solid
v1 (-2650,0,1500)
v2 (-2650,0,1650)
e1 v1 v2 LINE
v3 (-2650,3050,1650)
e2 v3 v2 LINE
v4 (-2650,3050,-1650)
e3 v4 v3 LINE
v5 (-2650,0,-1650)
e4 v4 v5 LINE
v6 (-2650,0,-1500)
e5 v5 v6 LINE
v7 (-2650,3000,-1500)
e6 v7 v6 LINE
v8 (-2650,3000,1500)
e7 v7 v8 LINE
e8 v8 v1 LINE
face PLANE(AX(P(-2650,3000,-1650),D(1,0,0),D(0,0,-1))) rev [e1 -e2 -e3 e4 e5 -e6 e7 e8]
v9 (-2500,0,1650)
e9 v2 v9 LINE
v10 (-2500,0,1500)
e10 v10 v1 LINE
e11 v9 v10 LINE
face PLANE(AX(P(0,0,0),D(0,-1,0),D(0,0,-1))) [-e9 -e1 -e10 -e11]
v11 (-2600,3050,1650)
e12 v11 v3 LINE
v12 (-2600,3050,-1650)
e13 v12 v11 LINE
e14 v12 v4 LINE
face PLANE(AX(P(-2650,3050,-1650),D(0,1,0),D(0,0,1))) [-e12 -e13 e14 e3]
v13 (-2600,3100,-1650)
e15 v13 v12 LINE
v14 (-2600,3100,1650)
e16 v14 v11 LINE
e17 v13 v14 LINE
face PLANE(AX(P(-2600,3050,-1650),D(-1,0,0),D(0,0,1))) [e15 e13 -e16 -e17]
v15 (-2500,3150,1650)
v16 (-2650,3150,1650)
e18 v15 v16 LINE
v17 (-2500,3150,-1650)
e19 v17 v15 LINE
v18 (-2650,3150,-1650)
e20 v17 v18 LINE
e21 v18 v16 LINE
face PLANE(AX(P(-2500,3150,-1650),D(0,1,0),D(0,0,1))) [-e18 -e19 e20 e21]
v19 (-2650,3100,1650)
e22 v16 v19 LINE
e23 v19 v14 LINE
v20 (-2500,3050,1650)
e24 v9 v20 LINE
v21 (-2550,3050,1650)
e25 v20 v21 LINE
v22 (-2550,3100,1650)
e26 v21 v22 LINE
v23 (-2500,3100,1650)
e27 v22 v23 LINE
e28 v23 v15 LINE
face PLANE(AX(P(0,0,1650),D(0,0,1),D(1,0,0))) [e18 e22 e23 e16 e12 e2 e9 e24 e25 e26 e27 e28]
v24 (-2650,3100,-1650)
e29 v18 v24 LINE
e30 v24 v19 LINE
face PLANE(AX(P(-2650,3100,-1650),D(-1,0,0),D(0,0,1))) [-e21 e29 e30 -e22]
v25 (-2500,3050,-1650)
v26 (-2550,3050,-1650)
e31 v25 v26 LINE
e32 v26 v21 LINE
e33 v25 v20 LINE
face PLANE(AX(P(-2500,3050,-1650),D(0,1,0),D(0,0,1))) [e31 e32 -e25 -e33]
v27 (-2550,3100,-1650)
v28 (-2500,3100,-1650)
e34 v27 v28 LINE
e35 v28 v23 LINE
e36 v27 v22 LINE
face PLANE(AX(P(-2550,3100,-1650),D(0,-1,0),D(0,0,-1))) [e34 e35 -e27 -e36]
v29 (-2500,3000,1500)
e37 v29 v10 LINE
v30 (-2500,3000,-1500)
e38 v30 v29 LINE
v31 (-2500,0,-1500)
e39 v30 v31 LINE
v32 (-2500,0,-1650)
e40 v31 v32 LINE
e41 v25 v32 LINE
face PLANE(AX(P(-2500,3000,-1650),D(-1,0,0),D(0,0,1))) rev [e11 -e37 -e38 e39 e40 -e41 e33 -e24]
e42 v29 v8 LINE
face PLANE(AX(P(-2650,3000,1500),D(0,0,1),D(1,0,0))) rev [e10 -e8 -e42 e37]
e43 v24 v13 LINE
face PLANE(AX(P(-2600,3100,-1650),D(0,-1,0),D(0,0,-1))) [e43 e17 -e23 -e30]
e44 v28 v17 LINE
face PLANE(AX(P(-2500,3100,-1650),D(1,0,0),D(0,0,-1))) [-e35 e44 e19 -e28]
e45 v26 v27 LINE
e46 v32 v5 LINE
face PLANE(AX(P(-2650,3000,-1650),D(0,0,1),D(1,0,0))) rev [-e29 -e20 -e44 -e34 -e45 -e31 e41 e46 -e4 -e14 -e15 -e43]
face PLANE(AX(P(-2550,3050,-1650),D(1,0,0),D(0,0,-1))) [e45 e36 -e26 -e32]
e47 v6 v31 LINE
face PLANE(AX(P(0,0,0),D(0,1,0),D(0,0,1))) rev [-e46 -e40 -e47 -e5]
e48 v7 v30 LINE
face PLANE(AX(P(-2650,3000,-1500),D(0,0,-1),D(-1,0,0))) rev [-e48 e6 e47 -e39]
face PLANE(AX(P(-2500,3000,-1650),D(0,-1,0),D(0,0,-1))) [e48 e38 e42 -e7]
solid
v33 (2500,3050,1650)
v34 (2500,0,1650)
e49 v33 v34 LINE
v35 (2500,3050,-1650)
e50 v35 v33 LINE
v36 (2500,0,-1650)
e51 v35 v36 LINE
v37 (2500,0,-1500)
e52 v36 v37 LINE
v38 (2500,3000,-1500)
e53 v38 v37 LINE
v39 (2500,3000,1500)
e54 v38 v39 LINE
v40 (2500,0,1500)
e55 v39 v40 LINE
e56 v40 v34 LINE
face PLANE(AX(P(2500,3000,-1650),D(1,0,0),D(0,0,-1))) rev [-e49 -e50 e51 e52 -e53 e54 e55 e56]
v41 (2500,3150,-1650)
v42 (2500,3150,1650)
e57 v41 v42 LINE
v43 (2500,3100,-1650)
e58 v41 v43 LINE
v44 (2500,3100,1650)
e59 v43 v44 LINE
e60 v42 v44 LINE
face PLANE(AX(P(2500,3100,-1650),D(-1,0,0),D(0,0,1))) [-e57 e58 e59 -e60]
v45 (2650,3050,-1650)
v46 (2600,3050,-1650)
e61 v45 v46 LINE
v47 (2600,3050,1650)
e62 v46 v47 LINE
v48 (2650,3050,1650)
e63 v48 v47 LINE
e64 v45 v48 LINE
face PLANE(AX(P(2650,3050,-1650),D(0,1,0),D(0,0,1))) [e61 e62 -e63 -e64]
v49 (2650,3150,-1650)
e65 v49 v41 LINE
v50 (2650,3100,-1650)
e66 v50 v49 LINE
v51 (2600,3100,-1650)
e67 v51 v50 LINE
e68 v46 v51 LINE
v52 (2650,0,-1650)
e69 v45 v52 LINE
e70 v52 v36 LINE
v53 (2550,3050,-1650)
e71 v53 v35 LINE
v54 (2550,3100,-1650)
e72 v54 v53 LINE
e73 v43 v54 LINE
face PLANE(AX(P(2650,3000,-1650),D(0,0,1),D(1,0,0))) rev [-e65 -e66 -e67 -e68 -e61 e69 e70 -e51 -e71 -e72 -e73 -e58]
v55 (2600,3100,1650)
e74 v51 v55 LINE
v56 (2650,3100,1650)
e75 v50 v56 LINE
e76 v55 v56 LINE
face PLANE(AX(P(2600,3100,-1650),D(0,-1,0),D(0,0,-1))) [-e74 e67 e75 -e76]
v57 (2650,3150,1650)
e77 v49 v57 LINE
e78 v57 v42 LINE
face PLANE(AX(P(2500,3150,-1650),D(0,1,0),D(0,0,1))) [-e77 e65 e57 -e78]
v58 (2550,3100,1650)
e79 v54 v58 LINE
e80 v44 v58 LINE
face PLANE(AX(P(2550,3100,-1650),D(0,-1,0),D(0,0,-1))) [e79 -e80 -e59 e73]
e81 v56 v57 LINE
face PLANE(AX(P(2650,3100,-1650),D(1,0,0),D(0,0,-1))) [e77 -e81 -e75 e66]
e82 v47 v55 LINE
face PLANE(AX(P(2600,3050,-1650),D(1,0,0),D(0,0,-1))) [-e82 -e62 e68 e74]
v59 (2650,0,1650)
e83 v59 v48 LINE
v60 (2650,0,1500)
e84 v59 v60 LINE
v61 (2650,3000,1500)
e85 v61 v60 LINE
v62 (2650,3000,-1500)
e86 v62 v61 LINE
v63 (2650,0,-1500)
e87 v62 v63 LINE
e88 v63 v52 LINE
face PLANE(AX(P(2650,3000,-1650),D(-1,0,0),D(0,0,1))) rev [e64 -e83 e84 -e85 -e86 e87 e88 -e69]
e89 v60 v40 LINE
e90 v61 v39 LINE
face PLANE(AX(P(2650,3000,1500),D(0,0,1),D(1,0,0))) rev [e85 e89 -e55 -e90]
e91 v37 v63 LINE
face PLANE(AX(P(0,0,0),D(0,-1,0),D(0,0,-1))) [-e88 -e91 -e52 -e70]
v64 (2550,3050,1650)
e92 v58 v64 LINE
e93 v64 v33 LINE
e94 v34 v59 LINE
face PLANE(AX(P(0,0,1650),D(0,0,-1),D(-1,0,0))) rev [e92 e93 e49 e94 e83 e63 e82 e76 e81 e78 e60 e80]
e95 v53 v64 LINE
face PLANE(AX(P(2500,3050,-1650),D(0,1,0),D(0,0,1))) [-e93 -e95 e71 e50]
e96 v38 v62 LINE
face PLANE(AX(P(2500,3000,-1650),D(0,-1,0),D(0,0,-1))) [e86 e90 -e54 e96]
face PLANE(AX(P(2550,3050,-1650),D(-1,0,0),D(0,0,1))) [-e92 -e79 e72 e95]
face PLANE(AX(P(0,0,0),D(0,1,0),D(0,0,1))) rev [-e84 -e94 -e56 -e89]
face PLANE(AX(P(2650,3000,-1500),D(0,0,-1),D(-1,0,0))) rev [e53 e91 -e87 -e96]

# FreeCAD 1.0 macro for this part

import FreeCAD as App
import Part
import Sketcher
from FreeCAD import Vector
Q = App.Units.Quantity

doc = App.newDocument("Part")
body = doc.addObject("PartDesign::Body", "Body")

sketch1 = body.newObject("Sketcher::SketchObject", "Sketch")
sketch1.AttachmentSupport = (doc.getObject("XZ_Plane"), [""])
sketch1.MapMode = "FlatFace"
sketch1.addGeometry([
    Part.LineSegment(Vector(-2650, -1650, 0), Vector(-2650, -1500, 0)),
    Part.LineSegment(Vector(-2650, -1500, 0), Vector(-2500, -1500, 0)),
    Part.LineSegment(Vector(-2500, -1500, 0), Vector(-2500, -1650, 0)),
    Part.LineSegment(Vector(-2500, -1650, 0), Vector(-2650, -1650, 0)),
], False)
sketch1.addConstraint([
    Sketcher.Constraint("Coincident", 0, 2, 1, 1),
    Sketcher.Constraint("Coincident", 1, 2, 2, 1),
    Sketcher.Constraint("Coincident", 2, 2, 3, 1),
    Sketcher.Constraint("Coincident", 3, 2, 0, 1),
    Sketcher.Constraint("Vertical", 0),
    Sketcher.Constraint("Horizontal", 1),
    Sketcher.Constraint("Vertical", 2),
    Sketcher.Constraint("Horizontal", 3),
    Sketcher.Constraint("Equal", 3, 0),
    Sketcher.Constraint("DistanceX", 1, 1, 1, 2, Q("150 mm")),
    Sketcher.Constraint("DistanceX", 0, 2, -1, 1, Q("2650 mm")),
    Sketcher.Constraint("DistanceY", 0, 2, -1, 1, Q("1500 mm")),
])
pad1 = body.newObject("PartDesign::Pad", "Pad")
pad1.Profile = sketch1
pad1.Length = 3000
pad1.Reversed = True
body2 = doc.addObject("PartDesign::Body", "Body001")

sketch2 = body2.newObject("Sketcher::SketchObject", "Sketch001")
sketch2.AttachmentSupport = (doc.getObject("XZ_Plane001"), [""])
sketch2.MapMode = "FlatFace"
sketch2.addGeometry([
    Part.LineSegment(Vector(-2650, 1500, 0), Vector(-2650, 1650, 0)),
    Part.LineSegment(Vector(-2650, 1650, 0), Vector(-2500, 1650, 0)),
    Part.LineSegment(Vector(-2500, 1650, 0), Vector(-2500, 1500, 0)),
    Part.LineSegment(Vector(-2500, 1500, 0), Vector(-2650, 1500, 0)),
], False)
sketch2.addConstraint([
    Sketcher.Constraint("Coincident", 0, 2, 1, 1),
    Sketcher.Constraint("Coincident", 1, 2, 2, 1),
    Sketcher.Constraint("Coincident", 2, 2, 3, 1),
    Sketcher.Constraint("Coincident", 3, 2, 0, 1),
    Sketcher.Constraint("Vertical", 0),
    Sketcher.Constraint("Horizontal", 1),
    Sketcher.Constraint("Vertical", 2),
    Sketcher.Constraint("Horizontal", 3),
    Sketcher.Constraint("Equal", 3, 0),
    Sketcher.Constraint("DistanceX", 1, 1, 1, 2, Q("150 mm")),
    Sketcher.Constraint("DistanceX", 0, 2, -1, 1, Q("2650 mm")),
    Sketcher.Constraint("DistanceY", -1, 1, 0, 2, Q("1650 mm")),
])
pad2 = body2.newObject("PartDesign::Pad", "Pad001")
pad2.Profile = sketch2
pad2.Length = 3000
pad2.Reversed = True
body3 = doc.addObject("PartDesign::Body", "Body002")

sketch3 = body3.newObject("Sketcher::SketchObject", "Sketch002")
sketch3.AttachmentSupport = (doc.getObject("XZ_Plane002"), [""])
sketch3.MapMode = "FlatFace"
sketch3.addGeometry([
    Part.LineSegment(Vector(2500, -1650, 0), Vector(2500, -1500, 0)),
    Part.LineSegment(Vector(2500, -1500, 0), Vector(2650, -1500, 0)),
    Part.LineSegment(Vector(2650, -1500, 0), Vector(2650, -1650, 0)),
    Part.LineSegment(Vector(2650, -1650, 0), Vector(2500, -1650, 0)),
], False)
sketch3.addConstraint([
    Sketcher.Constraint("Coincident", 0, 2, 1, 1),
    Sketcher.Constraint("Coincident", 1, 2, 2, 1),
    Sketcher.Constraint("Coincident", 2, 2, 3, 1),
    Sketcher.Constraint("Coincident", 3, 2, 0, 1),
    Sketcher.Constraint("Vertical", 0),
    Sketcher.Constraint("Horizontal", 1),
    Sketcher.Constraint("Vertical", 2),
    Sketcher.Constraint("Horizontal", 3),
    Sketcher.Constraint("Equal", 3, 0),
    Sketcher.Constraint("DistanceX", 1, 1, 1, 2, Q("150 mm")),
    Sketcher.Constraint("DistanceX", -1, 1, 0, 2, Q("2500 mm")),
    Sketcher.Constraint("DistanceY", 0, 2, -1, 1, Q("1500 mm")),
])
pad3 = body3.newObject("PartDesign::Pad", "Pad002")
pad3.Profile = sketch3
pad3.Length = 3000
pad3.Reversed = True
body4 = doc.addObject("PartDesign::Body", "Body003")

sketch4 = body4.newObject("Sketcher::SketchObject", "Sketch003")
sketch4.AttachmentSupport = (doc.getObject("XZ_Plane003"), [""])
sketch4.MapMode = "FlatFace"
sketch4.addGeometry([
    Part.LineSegment(Vector(2500, 1500, 0), Vector(2500, 1650, 0)),
    Part.LineSegment(Vector(2500, 1650, 0), Vector(2650, 1650, 0)),
    Part.LineSegment(Vector(2650, 1650, 0), Vector(2650, 1500, 0)),
    Part.LineSegment(Vector(2650, 1500, 0), Vector(2500, 1500, 0)),
], False)
sketch4.addConstraint([
    Sketcher.Constraint("Coincident", 0, 2, 1, 1),
    Sketcher.Constraint("Coincident", 1, 2, 2, 1),
    Sketcher.Constraint("Coincident", 2, 2, 3, 1),
    Sketcher.Constraint("Coincident", 3, 2, 0, 1),
    Sketcher.Constraint("Vertical", 0),
    Sketcher.Constraint("Horizontal", 1),
    Sketcher.Constraint("Vertical", 2),
    Sketcher.Constraint("Horizontal", 3),
    Sketcher.Constraint("Equal", 3, 0),
    Sketcher.Constraint("DistanceX", 1, 1, 1, 2, Q("150 mm")),
    Sketcher.Constraint("DistanceX", -1, 1, 0, 2, Q("2500 mm")),
    Sketcher.Constraint("DistanceY", -1, 1, 0, 2, Q("1650 mm")),
])
pad4 = body4.newObject("PartDesign::Pad", "Pad003")
pad4.Profile = sketch4
pad4.Length = 3000
pad4.Reversed = True
body.AllowCompound = True
doc.recompute()

boolean = body.newObject("PartDesign::Boolean", "Boolean")
boolean.Type = "Fuse"
boolean.addObjects([body2])
doc.recompute()

boolean2 = body.newObject("PartDesign::Boolean", "Boolean001")
boolean2.Type = "Fuse"
boolean2.addObjects([body3])
doc.recompute()

boolean3 = body.newObject("PartDesign::Boolean", "Boolean002")
boolean3.Type = "Fuse"
boolean3.addObjects([body4])

sketch5 = body.newObject("Sketcher::SketchObject", "Sketch004")
sketch5.AttachmentSupport = (doc.getObject("XY_Plane"), [""])
sketch5.MapMode = "FlatFace"
sketch5.AttachmentOffset = App.Placement(Vector(0, 0, 1650), App.Rotation())
sketch5.addGeometry([
    Part.LineSegment(Vector(-2650, 3000, 0), Vector(-2500, 3000, 0)),
    Part.LineSegment(Vector(-2500, 3000, 0), Vector(-2500, 3050, 0)),
    Part.LineSegment(Vector(-2500, 3050, 0), Vector(-2550, 3050, 0)),
    Part.LineSegment(Vector(-2550, 3050, 0), Vector(-2550, 3100, 0)),
    Part.LineSegment(Vector(-2550, 3100, 0), Vector(-2500, 3100, 0)),
    Part.LineSegment(Vector(-2500, 3100, 0), Vector(-2500, 3150, 0)),
    Part.LineSegment(Vector(-2500, 3150, 0), Vector(-2650, 3150, 0)),
    Part.LineSegment(Vector(-2650, 3150, 0), Vector(-2650, 3100, 0)),
    Part.LineSegment(Vector(-2650, 3100, 0), Vector(-2600, 3100, 0)),
    Part.LineSegment(Vector(-2600, 3100, 0), Vector(-2600, 3050, 0)),
    Part.LineSegment(Vector(-2600, 3050, 0), Vector(-2650, 3050, 0)),
    Part.LineSegment(Vector(-2650, 3050, 0), Vector(-2650, 3000, 0)),
    Part.LineSegment(Vector(2650, 3150, 0), Vector(2500, 3150, 0)),
    Part.LineSegment(Vector(2500, 3150, 0), Vector(2500, 3100, 0)),
    Part.LineSegment(Vector(2500, 3100, 0), Vector(2550, 3100, 0)),
    Part.LineSegment(Vector(2550, 3100, 0), Vector(2550, 3050, 0)),
    Part.LineSegment(Vector(2550, 3050, 0), Vector(2500, 3050, 0)),
    Part.LineSegment(Vector(2500, 3050, 0), Vector(2500, 3000, 0)),
    Part.LineSegment(Vector(2500, 3000, 0), Vector(2650, 3000, 0)),
    Part.LineSegment(Vector(2650, 3000, 0), Vector(2650, 3050, 0)),
    Part.LineSegment(Vector(2650, 3050, 0), Vector(2600, 3050, 0)),
    Part.LineSegment(Vector(2600, 3050, 0), Vector(2600, 3100, 0)),
    Part.LineSegment(Vector(2600, 3100, 0), Vector(2650, 3100, 0)),
    Part.LineSegment(Vector(2650, 3100, 0), Vector(2650, 3150, 0)),
], False)
sketch5.addConstraint([
    Sketcher.Constraint("Coincident", 0, 2, 1, 1),
    Sketcher.Constraint("Coincident", 1, 2, 2, 1),
    Sketcher.Constraint("Coincident", 2, 2, 3, 1),
    Sketcher.Constraint("Coincident", 3, 2, 4, 1),
    Sketcher.Constraint("Coincident", 4, 2, 5, 1),
    Sketcher.Constraint("Coincident", 5, 2, 6, 1),
    Sketcher.Constraint("Coincident", 6, 2, 7, 1),
    Sketcher.Constraint("Coincident", 7, 2, 8, 1),
    Sketcher.Constraint("Coincident", 8, 2, 9, 1),
    Sketcher.Constraint("Coincident", 9, 2, 10, 1),
    Sketcher.Constraint("Coincident", 10, 2, 11, 1),
    Sketcher.Constraint("Coincident", 11, 2, 0, 1),
    Sketcher.Constraint("Coincident", 12, 2, 13, 1),
    Sketcher.Constraint("Coincident", 13, 2, 14, 1),
    Sketcher.Constraint("Coincident", 14, 2, 15, 1),
    Sketcher.Constraint("Coincident", 15, 2, 16, 1),
    Sketcher.Constraint("Coincident", 16, 2, 17, 1),
    Sketcher.Constraint("Coincident", 17, 2, 18, 1),
    Sketcher.Constraint("Coincident", 18, 2, 19, 1),
    Sketcher.Constraint("Coincident", 19, 2, 20, 1),
    Sketcher.Constraint("Coincident", 20, 2, 21, 1),
    Sketcher.Constraint("Coincident", 21, 2, 22, 1),
    Sketcher.Constraint("Coincident", 22, 2, 23, 1),
    Sketcher.Constraint("Coincident", 23, 2, 12, 1),
    Sketcher.Constraint("Horizontal", 0),
    Sketcher.Constraint("Vertical", 1),
    Sketcher.Constraint("Horizontal", 2),
    Sketcher.Constraint("Vertical", 3),
    Sketcher.Constraint("Horizontal", 4),
    Sketcher.Constraint("Vertical", 5),
    Sketcher.Constraint("Horizontal", 6),
    Sketcher.Constraint("Vertical", 7),
    Sketcher.Constraint("Horizontal", 8),
    Sketcher.Constraint("Vertical", 9),
    Sketcher.Constraint("Horizontal", 10),
    Sketcher.Constraint("Vertical", 11),
    Sketcher.Constraint("Horizontal", 12),
    Sketcher.Constraint("Vertical", 13),
    Sketcher.Constraint("Horizontal", 14),
    Sketcher.Constraint("Vertical", 15),
    Sketcher.Constraint("Horizontal", 16),
    Sketcher.Constraint("Vertical", 17),
    Sketcher.Constraint("Horizontal", 18),
    Sketcher.Constraint("Vertical", 19),
    Sketcher.Constraint("Horizontal", 20),
    Sketcher.Constraint("Vertical", 21),
    Sketcher.Constraint("Horizontal", 22),
    Sketcher.Constraint("Vertical", 23),
    Sketcher.Constraint("Symmetric", 5, 2, 12, 2, -2),
    Sketcher.Constraint("Symmetric", 3, 2, 14, 2, -2),
    Sketcher.Constraint("Symmetric", 1, 2, 16, 2, -2),
    Sketcher.Constraint("Symmetric", 11, 2, 18, 2, -2),
    Sketcher.Constraint("Symmetric", 9, 2, 20, 2, -2),
    Sketcher.Constraint("Symmetric", 7, 2, 22, 2, -2),
    Sketcher.Constraint("Horizontal", 4, 2, 7, 2),
    Sketcher.Constraint("Horizontal", 2, 2, 9, 2),
    Sketcher.Constraint("Vertical", 1, 2, 4, 2),
    Sketcher.Constraint("Vertical", 7, 2, 10, 2),
    Sketcher.Constraint("Equal", 4, 8),
    Sketcher.Constraint("Equal", 22, 1),
    Sketcher.Constraint("Equal", 1, 3),
    Sketcher.Constraint("Equal", 3, 5),
    Sketcher.Constraint("DistanceX", 0, 1, 0, 2, Q("150 mm")),
    Sketcher.Constraint("DistanceX", 2, 2, 2, 1, Q("50 mm")),
    Sketcher.Constraint("DistanceX", 0, 2, -1, 1, Q("2500 mm")),
    Sketcher.Constraint("DistanceY", -1, 1, 0, 2, Q("3000 mm")),
])
pad5 = body.newObject("PartDesign::Pad", "Pad004")
pad5.Profile = sketch5
pad5.Length = 3300
pad5.Reversed = True

doc.recompute()
